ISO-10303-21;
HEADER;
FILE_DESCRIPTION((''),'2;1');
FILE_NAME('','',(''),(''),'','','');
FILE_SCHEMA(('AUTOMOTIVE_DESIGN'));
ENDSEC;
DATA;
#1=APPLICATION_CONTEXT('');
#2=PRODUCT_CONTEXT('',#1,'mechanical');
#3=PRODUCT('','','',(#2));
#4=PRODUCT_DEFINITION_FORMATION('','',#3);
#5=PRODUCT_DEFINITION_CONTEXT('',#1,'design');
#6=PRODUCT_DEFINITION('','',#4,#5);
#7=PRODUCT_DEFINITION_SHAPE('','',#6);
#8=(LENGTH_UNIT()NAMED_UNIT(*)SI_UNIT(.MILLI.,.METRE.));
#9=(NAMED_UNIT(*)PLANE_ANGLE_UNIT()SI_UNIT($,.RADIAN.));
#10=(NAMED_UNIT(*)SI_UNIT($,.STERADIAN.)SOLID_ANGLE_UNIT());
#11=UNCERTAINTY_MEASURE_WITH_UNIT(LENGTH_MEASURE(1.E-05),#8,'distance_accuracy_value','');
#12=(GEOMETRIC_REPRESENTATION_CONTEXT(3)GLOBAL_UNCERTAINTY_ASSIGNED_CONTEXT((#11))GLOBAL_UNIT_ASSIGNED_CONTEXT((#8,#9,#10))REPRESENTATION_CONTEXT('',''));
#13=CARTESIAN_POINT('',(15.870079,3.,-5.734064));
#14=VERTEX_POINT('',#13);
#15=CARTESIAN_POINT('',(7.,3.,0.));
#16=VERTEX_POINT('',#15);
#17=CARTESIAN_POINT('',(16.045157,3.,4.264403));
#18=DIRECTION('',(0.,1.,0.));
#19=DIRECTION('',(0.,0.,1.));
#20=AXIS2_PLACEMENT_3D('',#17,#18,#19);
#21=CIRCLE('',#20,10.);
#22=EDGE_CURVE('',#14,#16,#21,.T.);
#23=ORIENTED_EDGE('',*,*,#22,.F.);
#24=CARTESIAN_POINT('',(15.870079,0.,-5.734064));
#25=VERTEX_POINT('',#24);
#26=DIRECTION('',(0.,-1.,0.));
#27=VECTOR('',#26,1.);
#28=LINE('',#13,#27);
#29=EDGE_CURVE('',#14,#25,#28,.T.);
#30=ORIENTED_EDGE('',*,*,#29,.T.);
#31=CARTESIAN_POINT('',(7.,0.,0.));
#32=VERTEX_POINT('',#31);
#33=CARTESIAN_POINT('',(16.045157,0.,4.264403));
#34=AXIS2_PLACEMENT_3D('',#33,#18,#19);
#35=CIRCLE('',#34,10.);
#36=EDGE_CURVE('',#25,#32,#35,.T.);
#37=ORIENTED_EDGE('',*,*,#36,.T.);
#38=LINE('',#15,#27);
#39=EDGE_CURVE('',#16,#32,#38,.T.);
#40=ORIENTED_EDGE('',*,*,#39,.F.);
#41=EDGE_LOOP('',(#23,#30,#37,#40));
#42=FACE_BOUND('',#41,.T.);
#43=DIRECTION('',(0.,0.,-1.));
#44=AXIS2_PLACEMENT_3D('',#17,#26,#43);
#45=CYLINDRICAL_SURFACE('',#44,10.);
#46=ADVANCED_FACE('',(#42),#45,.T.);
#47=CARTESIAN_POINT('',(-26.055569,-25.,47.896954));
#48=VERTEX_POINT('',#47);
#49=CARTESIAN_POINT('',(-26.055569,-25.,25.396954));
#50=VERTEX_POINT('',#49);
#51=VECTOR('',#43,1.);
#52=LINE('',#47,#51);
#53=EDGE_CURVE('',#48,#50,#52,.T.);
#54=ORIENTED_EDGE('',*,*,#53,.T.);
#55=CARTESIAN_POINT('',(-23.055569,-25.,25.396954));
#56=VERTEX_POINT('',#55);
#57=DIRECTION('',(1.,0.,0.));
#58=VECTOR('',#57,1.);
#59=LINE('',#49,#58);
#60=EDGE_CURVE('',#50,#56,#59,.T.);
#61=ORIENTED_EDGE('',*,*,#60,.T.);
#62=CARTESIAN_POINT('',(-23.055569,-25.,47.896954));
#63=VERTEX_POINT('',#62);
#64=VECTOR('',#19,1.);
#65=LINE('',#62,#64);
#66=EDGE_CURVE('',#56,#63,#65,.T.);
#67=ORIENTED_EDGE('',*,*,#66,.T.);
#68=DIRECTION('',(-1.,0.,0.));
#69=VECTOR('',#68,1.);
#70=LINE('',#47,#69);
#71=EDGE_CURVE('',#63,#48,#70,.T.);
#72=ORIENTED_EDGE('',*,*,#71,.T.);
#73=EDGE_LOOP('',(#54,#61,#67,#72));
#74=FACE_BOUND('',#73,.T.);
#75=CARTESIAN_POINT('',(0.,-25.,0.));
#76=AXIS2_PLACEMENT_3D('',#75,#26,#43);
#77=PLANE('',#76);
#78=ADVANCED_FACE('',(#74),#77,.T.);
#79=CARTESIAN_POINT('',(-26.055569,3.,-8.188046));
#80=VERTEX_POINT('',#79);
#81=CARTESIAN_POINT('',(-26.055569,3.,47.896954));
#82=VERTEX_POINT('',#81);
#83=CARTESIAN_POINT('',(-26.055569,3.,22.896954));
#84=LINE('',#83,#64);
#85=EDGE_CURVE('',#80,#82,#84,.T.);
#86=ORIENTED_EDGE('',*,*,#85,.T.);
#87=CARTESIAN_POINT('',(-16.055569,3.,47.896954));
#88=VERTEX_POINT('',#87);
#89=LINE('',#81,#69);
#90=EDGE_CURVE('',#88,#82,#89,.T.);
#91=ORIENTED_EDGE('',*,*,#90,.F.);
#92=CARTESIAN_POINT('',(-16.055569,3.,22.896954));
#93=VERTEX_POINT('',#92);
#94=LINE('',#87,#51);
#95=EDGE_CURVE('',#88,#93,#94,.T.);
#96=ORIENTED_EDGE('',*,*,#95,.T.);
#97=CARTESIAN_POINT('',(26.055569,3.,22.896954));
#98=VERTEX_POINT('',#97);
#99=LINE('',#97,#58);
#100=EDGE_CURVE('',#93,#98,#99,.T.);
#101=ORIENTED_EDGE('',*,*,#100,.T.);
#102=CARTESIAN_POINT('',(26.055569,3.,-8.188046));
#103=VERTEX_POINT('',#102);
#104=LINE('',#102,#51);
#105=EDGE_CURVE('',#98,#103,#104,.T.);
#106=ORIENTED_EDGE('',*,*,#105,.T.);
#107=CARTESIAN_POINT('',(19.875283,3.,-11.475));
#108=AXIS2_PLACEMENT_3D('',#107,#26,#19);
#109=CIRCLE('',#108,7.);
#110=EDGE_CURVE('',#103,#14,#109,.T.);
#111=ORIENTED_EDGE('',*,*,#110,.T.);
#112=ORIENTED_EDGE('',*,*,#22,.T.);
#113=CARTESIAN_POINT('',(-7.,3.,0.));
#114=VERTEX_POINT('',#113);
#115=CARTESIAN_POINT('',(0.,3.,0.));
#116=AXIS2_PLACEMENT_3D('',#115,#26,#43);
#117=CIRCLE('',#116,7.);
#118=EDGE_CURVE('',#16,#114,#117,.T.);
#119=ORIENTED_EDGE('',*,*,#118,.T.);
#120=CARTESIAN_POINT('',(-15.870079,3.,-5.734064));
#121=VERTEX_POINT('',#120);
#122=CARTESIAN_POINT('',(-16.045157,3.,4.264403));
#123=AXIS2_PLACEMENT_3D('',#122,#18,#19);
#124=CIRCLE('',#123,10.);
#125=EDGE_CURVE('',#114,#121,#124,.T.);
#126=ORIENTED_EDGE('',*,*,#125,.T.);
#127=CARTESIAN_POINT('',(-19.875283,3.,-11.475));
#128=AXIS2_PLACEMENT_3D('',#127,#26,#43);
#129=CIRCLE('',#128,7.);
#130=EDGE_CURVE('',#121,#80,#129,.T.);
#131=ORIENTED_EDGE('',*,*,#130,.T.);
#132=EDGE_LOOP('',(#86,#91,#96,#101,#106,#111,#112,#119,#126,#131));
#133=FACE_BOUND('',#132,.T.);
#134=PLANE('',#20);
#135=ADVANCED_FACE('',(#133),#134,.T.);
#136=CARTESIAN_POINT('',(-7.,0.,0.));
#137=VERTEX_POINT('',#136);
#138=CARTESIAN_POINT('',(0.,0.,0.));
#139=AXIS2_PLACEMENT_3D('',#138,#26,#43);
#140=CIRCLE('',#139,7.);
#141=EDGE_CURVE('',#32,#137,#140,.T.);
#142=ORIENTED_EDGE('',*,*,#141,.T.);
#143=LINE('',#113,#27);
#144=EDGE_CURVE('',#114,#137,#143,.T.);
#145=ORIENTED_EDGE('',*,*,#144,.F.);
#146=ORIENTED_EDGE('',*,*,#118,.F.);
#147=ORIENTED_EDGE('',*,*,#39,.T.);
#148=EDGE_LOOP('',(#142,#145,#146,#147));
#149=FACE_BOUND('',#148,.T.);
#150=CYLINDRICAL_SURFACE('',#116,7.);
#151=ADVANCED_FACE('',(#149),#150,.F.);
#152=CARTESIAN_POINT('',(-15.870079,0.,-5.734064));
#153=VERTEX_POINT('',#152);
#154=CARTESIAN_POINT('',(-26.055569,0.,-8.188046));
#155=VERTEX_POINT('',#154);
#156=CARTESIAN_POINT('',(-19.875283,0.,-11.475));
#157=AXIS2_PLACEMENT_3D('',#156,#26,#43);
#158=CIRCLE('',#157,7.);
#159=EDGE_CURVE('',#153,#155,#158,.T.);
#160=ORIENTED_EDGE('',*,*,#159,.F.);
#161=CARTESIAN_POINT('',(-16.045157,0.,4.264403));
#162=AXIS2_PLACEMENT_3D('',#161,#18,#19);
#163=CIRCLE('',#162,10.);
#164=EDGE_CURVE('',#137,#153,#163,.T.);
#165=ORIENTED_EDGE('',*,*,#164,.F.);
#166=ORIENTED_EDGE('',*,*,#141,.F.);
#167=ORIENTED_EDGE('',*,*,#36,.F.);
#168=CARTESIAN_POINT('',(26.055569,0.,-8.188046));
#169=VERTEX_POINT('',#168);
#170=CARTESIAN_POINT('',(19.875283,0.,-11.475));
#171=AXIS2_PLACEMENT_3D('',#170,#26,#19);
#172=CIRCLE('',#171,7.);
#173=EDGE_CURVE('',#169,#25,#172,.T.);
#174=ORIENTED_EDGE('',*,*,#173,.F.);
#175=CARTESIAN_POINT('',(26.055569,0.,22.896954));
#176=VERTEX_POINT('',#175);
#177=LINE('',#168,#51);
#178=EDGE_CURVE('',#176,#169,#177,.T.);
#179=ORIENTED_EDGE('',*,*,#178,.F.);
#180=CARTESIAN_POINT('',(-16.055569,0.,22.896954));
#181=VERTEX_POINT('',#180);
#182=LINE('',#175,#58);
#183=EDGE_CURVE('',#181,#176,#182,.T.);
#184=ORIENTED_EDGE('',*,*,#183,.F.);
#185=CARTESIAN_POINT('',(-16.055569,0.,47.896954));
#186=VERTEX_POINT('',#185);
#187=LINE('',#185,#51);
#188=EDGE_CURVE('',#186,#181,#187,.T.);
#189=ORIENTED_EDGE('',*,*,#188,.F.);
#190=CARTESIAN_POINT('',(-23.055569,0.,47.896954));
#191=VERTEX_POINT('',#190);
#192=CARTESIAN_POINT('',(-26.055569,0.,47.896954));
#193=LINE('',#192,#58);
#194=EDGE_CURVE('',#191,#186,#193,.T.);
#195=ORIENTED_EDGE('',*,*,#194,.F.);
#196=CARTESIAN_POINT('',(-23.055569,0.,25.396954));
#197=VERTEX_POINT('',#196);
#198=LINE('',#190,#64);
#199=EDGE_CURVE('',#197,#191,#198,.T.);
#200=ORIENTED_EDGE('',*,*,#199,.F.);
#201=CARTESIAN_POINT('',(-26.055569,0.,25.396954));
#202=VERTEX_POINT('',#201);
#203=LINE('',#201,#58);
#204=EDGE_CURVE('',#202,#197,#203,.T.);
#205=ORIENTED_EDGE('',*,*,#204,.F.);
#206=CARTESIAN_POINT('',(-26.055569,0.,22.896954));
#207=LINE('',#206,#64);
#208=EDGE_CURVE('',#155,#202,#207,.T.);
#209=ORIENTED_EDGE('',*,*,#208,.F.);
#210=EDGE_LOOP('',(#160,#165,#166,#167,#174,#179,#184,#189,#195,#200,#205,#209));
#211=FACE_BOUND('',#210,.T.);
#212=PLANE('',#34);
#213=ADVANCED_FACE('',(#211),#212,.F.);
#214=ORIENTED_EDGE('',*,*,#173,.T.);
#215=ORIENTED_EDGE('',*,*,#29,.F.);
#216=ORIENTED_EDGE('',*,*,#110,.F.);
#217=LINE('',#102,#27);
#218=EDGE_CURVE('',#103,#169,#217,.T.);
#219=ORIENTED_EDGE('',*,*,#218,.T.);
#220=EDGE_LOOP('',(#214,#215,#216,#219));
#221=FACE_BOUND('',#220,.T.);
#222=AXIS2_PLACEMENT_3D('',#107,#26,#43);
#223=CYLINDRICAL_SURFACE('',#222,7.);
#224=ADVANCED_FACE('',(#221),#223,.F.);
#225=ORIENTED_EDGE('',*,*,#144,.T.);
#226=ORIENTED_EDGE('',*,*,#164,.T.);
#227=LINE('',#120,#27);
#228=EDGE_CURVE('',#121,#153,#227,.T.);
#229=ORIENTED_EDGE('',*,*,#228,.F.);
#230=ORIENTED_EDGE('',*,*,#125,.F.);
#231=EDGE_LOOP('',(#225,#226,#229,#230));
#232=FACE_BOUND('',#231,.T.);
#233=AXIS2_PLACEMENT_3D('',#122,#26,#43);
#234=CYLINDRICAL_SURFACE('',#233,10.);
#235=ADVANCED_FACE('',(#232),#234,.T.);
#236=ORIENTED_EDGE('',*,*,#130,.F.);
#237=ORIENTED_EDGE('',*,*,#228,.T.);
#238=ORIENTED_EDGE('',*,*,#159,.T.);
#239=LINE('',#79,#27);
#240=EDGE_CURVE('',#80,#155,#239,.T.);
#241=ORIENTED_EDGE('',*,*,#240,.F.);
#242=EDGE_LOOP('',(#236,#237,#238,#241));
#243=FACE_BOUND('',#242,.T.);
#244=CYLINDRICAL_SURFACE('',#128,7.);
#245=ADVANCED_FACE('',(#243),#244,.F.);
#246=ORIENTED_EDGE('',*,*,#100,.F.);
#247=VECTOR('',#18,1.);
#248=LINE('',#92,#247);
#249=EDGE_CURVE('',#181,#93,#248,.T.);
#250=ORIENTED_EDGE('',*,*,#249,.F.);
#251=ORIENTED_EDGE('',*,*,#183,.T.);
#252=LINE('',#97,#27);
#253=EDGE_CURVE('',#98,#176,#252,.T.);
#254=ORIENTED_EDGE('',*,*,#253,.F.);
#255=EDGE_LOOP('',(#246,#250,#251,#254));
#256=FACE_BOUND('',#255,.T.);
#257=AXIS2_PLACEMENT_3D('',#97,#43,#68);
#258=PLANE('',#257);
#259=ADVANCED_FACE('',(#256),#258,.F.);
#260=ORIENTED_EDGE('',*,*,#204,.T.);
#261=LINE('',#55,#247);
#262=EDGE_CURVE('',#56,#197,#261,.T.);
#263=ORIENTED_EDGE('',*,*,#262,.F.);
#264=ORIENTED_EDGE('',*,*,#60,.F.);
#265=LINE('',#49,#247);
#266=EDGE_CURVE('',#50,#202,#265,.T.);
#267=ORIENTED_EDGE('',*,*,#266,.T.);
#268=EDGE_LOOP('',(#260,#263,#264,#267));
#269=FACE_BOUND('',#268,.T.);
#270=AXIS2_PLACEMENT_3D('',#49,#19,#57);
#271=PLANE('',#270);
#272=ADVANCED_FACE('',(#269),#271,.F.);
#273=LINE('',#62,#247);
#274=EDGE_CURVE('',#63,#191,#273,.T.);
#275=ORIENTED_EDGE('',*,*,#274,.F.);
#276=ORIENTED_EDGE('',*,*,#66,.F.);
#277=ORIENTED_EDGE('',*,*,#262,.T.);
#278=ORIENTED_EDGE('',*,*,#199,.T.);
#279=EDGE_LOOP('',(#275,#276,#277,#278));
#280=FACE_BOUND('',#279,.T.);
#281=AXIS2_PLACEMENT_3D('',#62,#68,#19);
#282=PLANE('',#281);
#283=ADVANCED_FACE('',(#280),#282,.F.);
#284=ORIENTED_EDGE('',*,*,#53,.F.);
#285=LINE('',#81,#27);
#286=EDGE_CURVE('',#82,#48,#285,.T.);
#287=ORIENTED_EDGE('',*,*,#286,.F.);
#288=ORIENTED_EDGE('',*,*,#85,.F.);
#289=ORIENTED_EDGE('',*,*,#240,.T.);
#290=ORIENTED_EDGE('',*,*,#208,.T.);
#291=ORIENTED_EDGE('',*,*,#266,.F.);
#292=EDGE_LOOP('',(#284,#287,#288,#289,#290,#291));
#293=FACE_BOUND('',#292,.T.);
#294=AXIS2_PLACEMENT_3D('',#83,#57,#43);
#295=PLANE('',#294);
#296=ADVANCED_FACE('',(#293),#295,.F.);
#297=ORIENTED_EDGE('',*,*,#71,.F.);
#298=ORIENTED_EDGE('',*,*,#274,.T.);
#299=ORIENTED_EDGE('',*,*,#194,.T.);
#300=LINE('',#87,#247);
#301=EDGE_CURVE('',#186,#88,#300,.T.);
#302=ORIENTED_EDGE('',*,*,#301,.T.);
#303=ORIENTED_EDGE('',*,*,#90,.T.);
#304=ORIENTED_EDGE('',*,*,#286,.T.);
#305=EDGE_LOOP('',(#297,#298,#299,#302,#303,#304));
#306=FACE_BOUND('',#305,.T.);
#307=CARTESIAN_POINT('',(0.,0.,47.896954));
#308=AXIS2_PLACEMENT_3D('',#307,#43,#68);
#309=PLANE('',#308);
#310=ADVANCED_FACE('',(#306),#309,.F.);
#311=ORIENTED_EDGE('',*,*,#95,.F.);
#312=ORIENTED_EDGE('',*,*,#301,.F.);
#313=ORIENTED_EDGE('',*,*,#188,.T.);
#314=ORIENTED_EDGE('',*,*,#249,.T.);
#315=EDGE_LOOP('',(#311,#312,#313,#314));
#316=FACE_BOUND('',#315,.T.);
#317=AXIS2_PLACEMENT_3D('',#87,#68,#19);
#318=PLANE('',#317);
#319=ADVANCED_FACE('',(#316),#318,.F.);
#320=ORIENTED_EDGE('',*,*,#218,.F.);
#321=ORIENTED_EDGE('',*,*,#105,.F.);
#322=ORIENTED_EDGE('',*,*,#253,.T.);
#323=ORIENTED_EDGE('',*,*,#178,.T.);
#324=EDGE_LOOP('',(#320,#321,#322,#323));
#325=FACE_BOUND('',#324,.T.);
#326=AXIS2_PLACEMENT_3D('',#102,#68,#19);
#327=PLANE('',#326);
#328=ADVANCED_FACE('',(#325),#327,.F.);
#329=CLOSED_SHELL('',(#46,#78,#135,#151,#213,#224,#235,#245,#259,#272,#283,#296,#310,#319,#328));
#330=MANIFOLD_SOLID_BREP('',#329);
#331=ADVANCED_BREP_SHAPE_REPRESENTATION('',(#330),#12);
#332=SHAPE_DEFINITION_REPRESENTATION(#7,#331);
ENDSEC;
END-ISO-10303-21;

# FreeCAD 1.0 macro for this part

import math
import FreeCAD as App
import Part
import Sketcher

V = App.Vector
Q = App.Units.Quantity


def add_polygon(sketch, points):
    """Adds a closed chain of lines whose ends are joined by coincident constraints."""
    first, n = sketch.GeometryCount, len(points)
    for a, b in zip(points, points[1:] + points[:1]):
        sketch.addGeometry(Part.LineSegment(App.Vector(*a, 0), App.Vector(*b, 0)), False)
    for i in range(n):
        sketch.addConstraint(Sketcher.Constraint("Coincident", first + i, 2, first + (i + 1) % n, 1))

doc = App.newDocument("Part")
params = doc.addObject("Spreadsheet::Sheet", "Params")
for row, (alias, value) in enumerate([
    ("sketch1_radius", "7 mm"),
    ("sketch1_radius2", "10 mm"),
    ("pad1_length", "3 mm"),
    ("sketch2_width", "10 mm"),
    ("sketch2_height", "3 mm"),
    ("pad2_length", "25 mm"),
    ("sketch3_width", "3 mm"),
    ("sketch3_height", "22.5 mm"),
    ("pad3_length", "25 mm"),
], start=1):
    params.set(f"A{row}", alias)
    params.set(f"B{row}", "=" + value)
    params.setAlias(f"B{row}", alias)

body = doc.addObject("PartDesign::Body", "Body")

sketch1 = body.newObject("Sketcher::SketchObject", "Sketch")
sketch1.AttachmentSupport = (doc.getObject("XZ_Plane"), [""])
sketch1.MapMode = "FlatFace"
sketch1.addGeometry(Part.LineSegment(V(26, 23, 0), V(26, -8, 0)), False)
sketch1.addGeometry(Part.ArcOfCircle(Part.Circle(V(20, -11, 0), V(0, 0, 1), 7), math.radians(28), math.radians(125)), False)
sketch1.addGeometry(Part.ArcOfCircle(Part.Circle(V(16, 4, 0), V(0, 0, 1), 10), math.radians(-155), math.radians(-91)), False)
sketch1.addGeometry(Part.ArcOfCircle(Part.Circle(V(0, 0, 0), V(0, 0, 1), 7), math.radians(0), math.radians(180)), False)
sketch1.addGeometry(Part.ArcOfCircle(Part.Circle(V(-16, 4, 0), V(0, 0, 1), 10), math.radians(-89), math.radians(-25)), False)
sketch1.addGeometry(Part.ArcOfCircle(Part.Circle(V(-20, -11, 0), V(0, 0, 1), 7), math.radians(55), math.radians(152)), False)
sketch1.addGeometry(Part.LineSegment(V(-26, -8, 0), V(-26, 23, 0)), False)
sketch1.addGeometry(Part.LineSegment(V(-26, 23, 0), V(26, 23, 0)), False)
sketch1.addConstraint(Sketcher.Constraint("Coincident", 0, 2, 1, 1))
sketch1.addConstraint(Sketcher.Constraint("Coincident", 1, 2, 2, 2))
sketch1.addConstraint(Sketcher.Constraint("Coincident", 2, 1, 3, 1))
sketch1.addConstraint(Sketcher.Constraint("Coincident", 3, 2, 4, 2))
sketch1.addConstraint(Sketcher.Constraint("Coincident", 4, 1, 5, 1))
sketch1.addConstraint(Sketcher.Constraint("Coincident", 5, 2, 6, 1))
sketch1.addConstraint(Sketcher.Constraint("Coincident", 6, 2, 7, 1))
sketch1.addConstraint(Sketcher.Constraint("Coincident", 7, 2, 0, 1))
sketch1.addConstraint(Sketcher.Constraint("Vertical", 0))
sketch1.addConstraint(Sketcher.Constraint("Vertical", 6))
sketch1.addConstraint(Sketcher.Constraint("Horizontal", 7))
sketch1.addConstraint(Sketcher.Constraint("Coincident", 3, 3, -1, 1))
sketch1.addConstraint(Sketcher.Constraint("Equal", 1, 3))
sketch1.addConstraint(Sketcher.Constraint("Equal", 2, 4))
sketch1.addConstraint(Sketcher.Constraint("Equal", 3, 5))
sketch1.addConstraint(Sketcher.Constraint("Symmetric", 2, 3, 4, 3, -2))
sketch1.addConstraint(Sketcher.Constraint("Symmetric", 1, 3, 5, 3, -2))
sketch1.addConstraint(Sketcher.Constraint("PointOnObject", 2, 1, -1))
sketch1.addConstraint(Sketcher.Constraint("Horizontal", 0, 2, 5, 2))
sketch1.addConstraint(Sketcher.Constraint("Radius", 1, Q("7 mm")))
sketch1.addConstraint(Sketcher.Constraint("Radius", 2, Q("10 mm")))
sketch1.addConstraint(Sketcher.Constraint("DistanceY", 0, 2, 0, 1, Q("31.085 mm")))
sketch1.addConstraint(Sketcher.Constraint("DistanceY", 1, 3, -1, 1, Q("11.475 mm")))
sketch1.addConstraint(Sketcher.Constraint("DistanceX", 7, 1, 7, 2, Q("52.111138 mm")))
sketch1.addConstraint(Sketcher.Constraint("DistanceX", -1, 1, 1, 2, Q("15.870079 mm")))
sketch1.addConstraint(Sketcher.Constraint("DistanceX", 4, 3, 1, 3, Q("35.92044 mm")))
sketch1.setExpression("Constraints[19]", "Params.sketch1_radius")
sketch1.setExpression("Constraints[20]", "Params.sketch1_radius2")
pad1 = body.newObject("PartDesign::Pad", "Pad")
pad1.Profile = sketch1
pad1.setExpression("Length", "Params.pad1_length")
pad1.Reversed = True

sketch2 = body.newObject("Sketcher::SketchObject", "Sketch001")
sketch2.AttachmentSupport = (doc.getObject("XY_Plane"), [""])
sketch2.MapMode = "FlatFace"
sketch2.AttachmentOffset = App.Placement(V(0, 0, 22.896954), App.Rotation())
add_polygon(sketch2, [(-26.1, 3), (-26.1, 0), (-16.1, 0), (-16.1, 3)])
sketch2.addConstraint(Sketcher.Constraint("Vertical", 0))
sketch2.addConstraint(Sketcher.Constraint("Horizontal", 1))
sketch2.addConstraint(Sketcher.Constraint("Vertical", 2))
sketch2.addConstraint(Sketcher.Constraint("Horizontal", 3))
sketch2.addConstraint(Sketcher.Constraint("PointOnObject", 0, 2, -1))
sketch2.addConstraint(Sketcher.Constraint("DistanceX", 1, 1, 1, 2, Q("10 mm")))
sketch2.addConstraint(Sketcher.Constraint("DistanceY", 0, 2, 0, 1, Q("3 mm")))
sketch2.addConstraint(Sketcher.Constraint("DistanceX", 0, 2, -1, 1, Q("26.055569 mm")))
sketch2.setExpression("Constraints[9]", "Params.sketch2_width")
sketch2.setExpression("Constraints[10]", "Params.sketch2_height")
pad2 = body.newObject("PartDesign::Pad", "Pad001")
pad2.Profile = sketch2
pad2.setExpression("Length", "Params.pad2_length")

sketch3 = body.newObject("Sketcher::SketchObject", "Sketch002")
sketch3.AttachmentSupport = (doc.getObject("XZ_Plane"), [""])
sketch3.MapMode = "FlatFace"
add_polygon(sketch3, [(-26.1, 47.9), (-26.1, 25.4), (-23.1, 25.4), (-23.1, 47.9)])
sketch3.addConstraint(Sketcher.Constraint("Vertical", 0))
sketch3.addConstraint(Sketcher.Constraint("Horizontal", 1))
sketch3.addConstraint(Sketcher.Constraint("Vertical", 2))
sketch3.addConstraint(Sketcher.Constraint("Horizontal", 3))
sketch3.addConstraint(Sketcher.Constraint("DistanceX", 1, 1, 1, 2, Q("3 mm")))
sketch3.addConstraint(Sketcher.Constraint("DistanceY", 0, 2, 0, 1, Q("22.5 mm")))
sketch3.addConstraint(Sketcher.Constraint("DistanceX", 0, 2, -1, 1, Q("26.055569 mm")))
sketch3.addConstraint(Sketcher.Constraint("DistanceY", -1, 1, 0, 2, Q("25.396954 mm")))
sketch3.setExpression("Constraints[8]", "Params.sketch3_width")
sketch3.setExpression("Constraints[9]", "Params.sketch3_height")
pad3 = body.newObject("PartDesign::Pad", "Pad002")
pad3.Profile = sketch3
pad3.setExpression("Length", "Params.pad3_length")

doc.recompute()
